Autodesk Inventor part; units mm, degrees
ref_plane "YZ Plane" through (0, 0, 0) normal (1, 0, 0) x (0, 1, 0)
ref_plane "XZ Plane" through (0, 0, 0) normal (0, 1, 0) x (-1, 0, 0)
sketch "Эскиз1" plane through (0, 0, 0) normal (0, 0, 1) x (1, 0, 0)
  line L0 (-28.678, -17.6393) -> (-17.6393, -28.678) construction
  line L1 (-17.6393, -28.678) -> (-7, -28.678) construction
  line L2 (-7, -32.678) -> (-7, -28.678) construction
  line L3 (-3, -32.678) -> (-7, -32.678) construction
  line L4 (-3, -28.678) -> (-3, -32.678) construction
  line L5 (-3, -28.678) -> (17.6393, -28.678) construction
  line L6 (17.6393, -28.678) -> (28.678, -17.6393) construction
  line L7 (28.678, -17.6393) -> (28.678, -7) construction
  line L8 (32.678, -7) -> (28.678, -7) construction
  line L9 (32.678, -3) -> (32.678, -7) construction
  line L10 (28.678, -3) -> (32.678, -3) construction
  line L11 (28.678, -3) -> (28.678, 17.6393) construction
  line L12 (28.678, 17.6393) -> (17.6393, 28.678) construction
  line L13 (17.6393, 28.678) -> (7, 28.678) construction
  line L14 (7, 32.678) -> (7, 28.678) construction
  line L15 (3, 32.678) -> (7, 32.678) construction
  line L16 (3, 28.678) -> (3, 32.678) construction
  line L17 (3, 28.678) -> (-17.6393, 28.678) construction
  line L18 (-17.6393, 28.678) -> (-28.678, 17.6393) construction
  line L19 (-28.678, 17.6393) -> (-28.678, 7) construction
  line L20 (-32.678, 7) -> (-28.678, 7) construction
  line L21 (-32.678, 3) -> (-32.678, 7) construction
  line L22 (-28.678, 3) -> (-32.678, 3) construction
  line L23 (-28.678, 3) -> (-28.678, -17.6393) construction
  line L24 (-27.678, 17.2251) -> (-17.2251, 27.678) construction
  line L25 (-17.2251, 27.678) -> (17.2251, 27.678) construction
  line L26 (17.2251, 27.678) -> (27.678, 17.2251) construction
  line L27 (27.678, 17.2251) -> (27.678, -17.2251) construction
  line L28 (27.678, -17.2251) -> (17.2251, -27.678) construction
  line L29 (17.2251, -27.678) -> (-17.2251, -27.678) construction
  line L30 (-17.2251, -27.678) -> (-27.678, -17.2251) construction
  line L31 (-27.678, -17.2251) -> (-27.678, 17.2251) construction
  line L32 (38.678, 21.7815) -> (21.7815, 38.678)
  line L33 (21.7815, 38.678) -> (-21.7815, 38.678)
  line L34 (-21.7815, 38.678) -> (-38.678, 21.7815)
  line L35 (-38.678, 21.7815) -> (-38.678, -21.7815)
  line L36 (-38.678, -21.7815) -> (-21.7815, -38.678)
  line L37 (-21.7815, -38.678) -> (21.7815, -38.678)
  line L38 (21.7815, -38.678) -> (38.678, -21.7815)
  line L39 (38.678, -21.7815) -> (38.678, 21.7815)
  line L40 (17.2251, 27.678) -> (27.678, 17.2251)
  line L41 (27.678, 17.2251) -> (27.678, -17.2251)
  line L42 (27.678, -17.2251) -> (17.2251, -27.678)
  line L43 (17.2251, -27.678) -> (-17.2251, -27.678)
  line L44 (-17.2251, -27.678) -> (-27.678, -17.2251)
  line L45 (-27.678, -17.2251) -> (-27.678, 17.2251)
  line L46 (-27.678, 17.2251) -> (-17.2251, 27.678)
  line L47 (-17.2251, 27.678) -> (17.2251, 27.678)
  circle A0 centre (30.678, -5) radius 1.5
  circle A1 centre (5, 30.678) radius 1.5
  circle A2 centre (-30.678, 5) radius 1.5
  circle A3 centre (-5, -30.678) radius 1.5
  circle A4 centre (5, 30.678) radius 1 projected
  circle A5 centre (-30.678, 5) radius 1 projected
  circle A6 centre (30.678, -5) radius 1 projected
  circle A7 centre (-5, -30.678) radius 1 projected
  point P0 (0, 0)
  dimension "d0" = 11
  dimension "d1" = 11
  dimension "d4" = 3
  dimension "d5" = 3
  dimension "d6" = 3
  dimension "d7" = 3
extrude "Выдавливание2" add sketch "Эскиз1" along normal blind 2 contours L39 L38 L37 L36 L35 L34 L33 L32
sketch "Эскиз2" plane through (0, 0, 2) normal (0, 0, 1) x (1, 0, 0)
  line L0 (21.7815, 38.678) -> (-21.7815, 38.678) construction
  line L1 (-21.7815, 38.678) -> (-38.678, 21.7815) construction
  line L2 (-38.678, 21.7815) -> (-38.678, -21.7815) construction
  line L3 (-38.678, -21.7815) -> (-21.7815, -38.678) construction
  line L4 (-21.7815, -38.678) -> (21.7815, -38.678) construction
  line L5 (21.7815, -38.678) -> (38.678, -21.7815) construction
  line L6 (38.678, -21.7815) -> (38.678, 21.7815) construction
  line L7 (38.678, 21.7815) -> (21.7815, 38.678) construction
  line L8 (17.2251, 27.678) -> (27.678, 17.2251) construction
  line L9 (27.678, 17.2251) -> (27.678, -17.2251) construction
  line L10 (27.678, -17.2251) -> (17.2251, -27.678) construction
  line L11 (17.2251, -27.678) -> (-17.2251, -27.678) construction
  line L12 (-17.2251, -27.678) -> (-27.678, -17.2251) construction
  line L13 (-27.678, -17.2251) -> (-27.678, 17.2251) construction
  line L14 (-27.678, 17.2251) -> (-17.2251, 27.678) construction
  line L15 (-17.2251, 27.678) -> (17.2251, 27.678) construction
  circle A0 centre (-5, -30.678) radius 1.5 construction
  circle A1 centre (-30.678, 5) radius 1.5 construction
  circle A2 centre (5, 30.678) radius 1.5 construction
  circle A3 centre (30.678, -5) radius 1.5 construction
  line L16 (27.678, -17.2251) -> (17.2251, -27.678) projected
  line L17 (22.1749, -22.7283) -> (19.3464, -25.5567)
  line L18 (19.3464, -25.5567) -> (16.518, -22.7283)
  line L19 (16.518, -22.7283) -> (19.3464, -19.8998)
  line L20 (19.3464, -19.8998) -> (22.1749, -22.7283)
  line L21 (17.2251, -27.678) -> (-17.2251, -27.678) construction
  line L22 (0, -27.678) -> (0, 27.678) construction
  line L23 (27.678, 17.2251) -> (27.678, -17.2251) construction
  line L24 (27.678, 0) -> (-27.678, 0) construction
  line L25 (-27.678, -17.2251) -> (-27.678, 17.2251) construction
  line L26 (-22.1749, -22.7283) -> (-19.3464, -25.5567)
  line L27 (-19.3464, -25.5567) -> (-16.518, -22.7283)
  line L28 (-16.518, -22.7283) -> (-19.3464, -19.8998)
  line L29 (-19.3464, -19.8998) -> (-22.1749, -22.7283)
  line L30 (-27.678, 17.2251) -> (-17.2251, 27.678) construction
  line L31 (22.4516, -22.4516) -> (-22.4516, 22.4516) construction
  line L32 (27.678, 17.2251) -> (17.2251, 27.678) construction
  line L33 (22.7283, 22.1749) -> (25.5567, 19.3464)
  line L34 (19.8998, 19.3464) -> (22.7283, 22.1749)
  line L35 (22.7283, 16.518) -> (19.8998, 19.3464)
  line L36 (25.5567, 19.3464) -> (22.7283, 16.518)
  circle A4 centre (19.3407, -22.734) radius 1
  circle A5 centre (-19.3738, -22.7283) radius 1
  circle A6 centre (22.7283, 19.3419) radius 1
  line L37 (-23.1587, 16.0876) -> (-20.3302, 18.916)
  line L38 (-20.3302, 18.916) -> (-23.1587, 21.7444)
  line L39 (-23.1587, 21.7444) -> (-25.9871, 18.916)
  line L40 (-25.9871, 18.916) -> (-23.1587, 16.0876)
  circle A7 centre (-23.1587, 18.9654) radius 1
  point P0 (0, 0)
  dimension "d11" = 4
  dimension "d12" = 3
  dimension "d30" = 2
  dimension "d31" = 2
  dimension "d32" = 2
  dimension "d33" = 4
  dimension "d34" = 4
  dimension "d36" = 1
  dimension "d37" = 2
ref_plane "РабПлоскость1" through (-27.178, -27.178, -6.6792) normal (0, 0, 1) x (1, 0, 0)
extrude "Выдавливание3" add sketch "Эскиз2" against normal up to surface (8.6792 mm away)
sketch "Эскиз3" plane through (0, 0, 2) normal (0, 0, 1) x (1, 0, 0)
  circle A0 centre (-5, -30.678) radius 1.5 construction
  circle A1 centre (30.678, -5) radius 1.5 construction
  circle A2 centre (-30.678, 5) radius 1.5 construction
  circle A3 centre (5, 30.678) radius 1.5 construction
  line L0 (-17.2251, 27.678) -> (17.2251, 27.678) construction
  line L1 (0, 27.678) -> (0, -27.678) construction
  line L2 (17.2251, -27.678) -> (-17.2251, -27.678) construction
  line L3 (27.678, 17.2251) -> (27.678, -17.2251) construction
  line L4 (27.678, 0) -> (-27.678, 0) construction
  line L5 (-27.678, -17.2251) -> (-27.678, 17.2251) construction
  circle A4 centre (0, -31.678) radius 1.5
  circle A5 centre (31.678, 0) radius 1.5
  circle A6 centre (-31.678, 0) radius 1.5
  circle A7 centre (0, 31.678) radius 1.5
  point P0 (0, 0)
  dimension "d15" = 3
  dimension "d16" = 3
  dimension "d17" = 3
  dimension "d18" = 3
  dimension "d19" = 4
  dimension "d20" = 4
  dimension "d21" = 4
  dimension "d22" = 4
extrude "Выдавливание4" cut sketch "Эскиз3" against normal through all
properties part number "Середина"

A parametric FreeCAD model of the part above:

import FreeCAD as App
import Part
import Sketcher
from FreeCAD import Vector
Q = App.Units.Quantity

doc = App.newDocument("Part")
body = doc.addObject("PartDesign::Body", "Body")

# Sketch on XY plane
sketch1 = body.newObject("Sketcher::SketchObject", "Sketch")
sketch1.AttachmentSupport = (doc.getObject("XY_Plane"), [""])
sketch1.MapMode = "FlatFace"
sketch1.addGeometry(Part.LineSegment(Vector(38.7, -21.8, 0), Vector(38.7, 21.8, 0)), False)
sketch1.addGeometry(Part.LineSegment(Vector(38.7, 21.8, 0), Vector(21.8, 38.7, 0)), False)
sketch1.addGeometry(Part.LineSegment(Vector(21.8, 38.7, 0), Vector(-21.8, 38.7, 0)), False)
sketch1.addGeometry(Part.LineSegment(Vector(-21.8, 38.7, 0), Vector(-38.7, 21.8, 0)), False)
sketch1.addGeometry(Part.LineSegment(Vector(-38.7, 21.8, 0), Vector(-38.7, -21.8, 0)), False)
sketch1.addGeometry(Part.LineSegment(Vector(-38.7, -21.8, 0), Vector(-21.8, -38.7, 0)), False)
sketch1.addGeometry(Part.LineSegment(Vector(-21.8, -38.7, 0), Vector(21.8, -38.7, 0)), False)
sketch1.addGeometry(Part.LineSegment(Vector(21.8, -38.7, 0), Vector(38.7, -21.8, 0)), False)
sketch1.addGeometry(Part.Circle(Vector(-5, -30.7, 0), Vector(0, 0, 1), 1.5), False)
sketch1.addGeometry(Part.Circle(Vector(30.7, -5, 0), Vector(0, 0, 1), 1.5), False)
sketch1.addGeometry(Part.Circle(Vector(-30.7, 5, 0), Vector(0, 0, 1), 1.5), False)
sketch1.addGeometry(Part.LineSegment(Vector(-17.2, 27.7, 0), Vector(17.2, 27.7, 0)), False)
sketch1.addGeometry(Part.LineSegment(Vector(17.2, 27.7, 0), Vector(27.7, 17.2, 0)), False)
sketch1.addGeometry(Part.LineSegment(Vector(27.7, 17.2, 0), Vector(27.7, -17.2, 0)), False)
sketch1.addGeometry(Part.LineSegment(Vector(27.7, -17.2, 0), Vector(17.2, -27.7, 0)), False)
sketch1.addGeometry(Part.LineSegment(Vector(17.2, -27.7, 0), Vector(-17.2, -27.7, 0)), False)
sketch1.addGeometry(Part.LineSegment(Vector(-17.2, -27.7, 0), Vector(-27.7, -17.2, 0)), False)
sketch1.addGeometry(Part.LineSegment(Vector(-27.7, -17.2, 0), Vector(-27.7, 17.2, 0)), False)
sketch1.addGeometry(Part.LineSegment(Vector(-27.7, 17.2, 0), Vector(-17.2, 27.7, 0)), False)
sketch1.addGeometry(Part.Circle(Vector(5, 30.7, 0), Vector(0, 0, 1), 1.5), False)
sketch1.addConstraint(Sketcher.Constraint("Coincident", 0, 2, 1, 1))
sketch1.addConstraint(Sketcher.Constraint("Coincident", 1, 2, 2, 1))
sketch1.addConstraint(Sketcher.Constraint("Coincident", 2, 2, 3, 1))
sketch1.addConstraint(Sketcher.Constraint("Coincident", 3, 2, 4, 1))
sketch1.addConstraint(Sketcher.Constraint("Coincident", 4, 2, 5, 1))
sketch1.addConstraint(Sketcher.Constraint("Coincident", 5, 2, 6, 1))
sketch1.addConstraint(Sketcher.Constraint("Coincident", 6, 2, 7, 1))
sketch1.addConstraint(Sketcher.Constraint("Coincident", 7, 2, 0, 1))
sketch1.addConstraint(Sketcher.Constraint("Coincident", 11, 2, 12, 1))
sketch1.addConstraint(Sketcher.Constraint("Coincident", 12, 2, 13, 1))
sketch1.addConstraint(Sketcher.Constraint("Coincident", 13, 2, 14, 1))
sketch1.addConstraint(Sketcher.Constraint("Coincident", 14, 2, 15, 1))
sketch1.addConstraint(Sketcher.Constraint("Coincident", 15, 2, 16, 1))
sketch1.addConstraint(Sketcher.Constraint("Coincident", 16, 2, 17, 1))
sketch1.addConstraint(Sketcher.Constraint("Coincident", 17, 2, 18, 1))
sketch1.addConstraint(Sketcher.Constraint("Coincident", 18, 2, 11, 1))
sketch1.addConstraint(Sketcher.Constraint("Vertical", 0))
sketch1.addConstraint(Sketcher.Constraint("Horizontal", 2))
sketch1.addConstraint(Sketcher.Constraint("Vertical", 4))
sketch1.addConstraint(Sketcher.Constraint("Horizontal", 6))
sketch1.addConstraint(Sketcher.Constraint("Horizontal", 11))
sketch1.addConstraint(Sketcher.Constraint("Vertical", 13))
sketch1.addConstraint(Sketcher.Constraint("Horizontal", 15))
sketch1.addConstraint(Sketcher.Constraint("Vertical", 17))
sketch1.addConstraint(Sketcher.Constraint("Equal", 8, 9))
sketch1.addConstraint(Sketcher.Constraint("Equal", 9, 10))
sketch1.addConstraint(Sketcher.Constraint("Equal", 10, 19))
sketch1.addConstraint(Sketcher.Constraint("Symmetric", 9, 3, 10, 3, -1, 1))
sketch1.addConstraint(Sketcher.Constraint("Symmetric", 8, 3, 19, 3, -1, 1))
sketch1.addConstraint(Sketcher.Constraint("Symmetric", 0, 2, 4, 2, -1, 1))
sketch1.addConstraint(Sketcher.Constraint("Symmetric", 1, 2, 5, 2, -1, 1))
sketch1.addConstraint(Sketcher.Constraint("Symmetric", 11, 2, 15, 2, -1, 1))
sketch1.addConstraint(Sketcher.Constraint("Symmetric", 12, 2, 16, 2, -1, 1))
sketch1.addConstraint(Sketcher.Constraint("Perpendicular", 1, 3))
sketch1.addConstraint(Sketcher.Constraint("Perpendicular", 5, 7))
sketch1.addConstraint(Sketcher.Constraint("Perpendicular", 7, 12))
sketch1.addConstraint(Sketcher.Constraint("Perpendicular", 12, 14))
sketch1.addConstraint(Sketcher.Constraint("Perpendicular", 16, 18))
sketch1.addConstraint(Sketcher.Constraint("Horizontal", 0, 2, 3, 2))
sketch1.addConstraint(Sketcher.Constraint("Horizontal", 4, 2, 7, 2))
sketch1.addConstraint(Sketcher.Constraint("Horizontal", 13, 2, 16, 2))
sketch1.addConstraint(Sketcher.Constraint("Horizontal", 12, 2, 17, 2))
sketch1.addConstraint(Sketcher.Constraint("Vertical", 2, 2, 5, 2))
sketch1.addConstraint(Sketcher.Constraint("Equal", 6, 0))
sketch1.addConstraint(Sketcher.Constraint("Equal", 15, 13))
sketch1.addConstraint(Sketcher.Constraint("Diameter", 8, Q("3 mm")))
sketch1.addConstraint(Sketcher.Constraint("DistanceY", 11, 2, 1, 2, Q("11 mm")))
sketch1.addConstraint(Sketcher.Constraint("DistanceY", 11, 2, 19, 3, Q("3 mm")))
sketch1.addConstraint(Sketcher.Constraint("DistanceX", 12, 2, 9, 3, Q("3 mm")))
sketch1.addConstraint(Sketcher.Constraint("DistanceX", 8, 3, -1, 1, Q("5 mm")))
sketch1.addConstraint(Sketcher.Constraint("DistanceY", 9, 3, -1, 1, Q("5 mm")))
sketch1.addConstraint(Sketcher.Constraint("DistanceX", 2, 2, 2, 1, Q("43.563 mm")))
sketch1.addConstraint(Sketcher.Constraint("DistanceX", 11, 1, 11, 2, Q("34.4502 mm")))
sketch1.addConstraint(Sketcher.Constraint("DistanceY", 8, 3, -1, 1, Q("30.678 mm")))
pad1 = body.newObject("PartDesign::Pad", "Pad")
pad1.Profile = sketch1
pad1.Length = 2

# Sketch on XY plane
sketch2 = body.newObject("Sketcher::SketchObject", "Sketch001")
sketch2.AttachmentSupport = (doc.getObject("XY_Plane"), [""])
sketch2.MapMode = "FlatFace"
sketch2.AttachmentOffset = App.Placement(Vector(0, 0, 2), App.Rotation())
sketch2.addGeometry(Part.LineSegment(Vector(19.3, -25.6, 0), Vector(22.2, -22.7, 0)), False)
sketch2.addGeometry(Part.LineSegment(Vector(22.2, -22.7, 0), Vector(19.3, -19.9, 0)), False)
sketch2.addGeometry(Part.LineSegment(Vector(19.3, -19.9, 0), Vector(16.5, -22.7, 0)), False)
sketch2.addGeometry(Part.LineSegment(Vector(16.5, -22.7, 0), Vector(19.3, -25.6, 0)), False)
sketch2.addGeometry(Part.Circle(Vector(19.3, -22.7, 0), Vector(0, 0, 1), 1), False)
sketch2.addGeometry(Part.LineSegment(Vector(-19.3, -19.9, 0), Vector(-22.2, -22.7, 0)), False)
sketch2.addGeometry(Part.LineSegment(Vector(-22.2, -22.7, 0), Vector(-19.3, -25.6, 0)), False)
sketch2.addGeometry(Part.LineSegment(Vector(-19.3, -25.6, 0), Vector(-16.5, -22.7, 0)), False)
sketch2.addGeometry(Part.LineSegment(Vector(-16.5, -22.7, 0), Vector(-19.3, -19.9, 0)), False)
sketch2.addGeometry(Part.Circle(Vector(-19.4, -22.7, 0), Vector(0, 0, 1), 1), False)
sketch2.addGeometry(Part.LineSegment(Vector(25.6, 19.3, 0), Vector(22.7, 22.2, 0)), False)
sketch2.addGeometry(Part.LineSegment(Vector(22.7, 22.2, 0), Vector(19.9, 19.3, 0)), False)
sketch2.addGeometry(Part.LineSegment(Vector(19.9, 19.3, 0), Vector(22.7, 16.5, 0)), False)
sketch2.addGeometry(Part.LineSegment(Vector(22.7, 16.5, 0), Vector(25.6, 19.3, 0)), False)
sketch2.addGeometry(Part.Circle(Vector(22.7, 19.3, 0), Vector(0, 0, 1), 1), False)
sketch2.addGeometry(Part.LineSegment(Vector(-26, 18.9, 0), Vector(-23.2, 16.1, 0)), False)
sketch2.addGeometry(Part.LineSegment(Vector(-23.2, 16.1, 0), Vector(-20.3, 18.9, 0)), False)
sketch2.addGeometry(Part.LineSegment(Vector(-20.3, 18.9, 0), Vector(-23.2, 21.7, 0)), False)
sketch2.addGeometry(Part.LineSegment(Vector(-23.2, 21.7, 0), Vector(-26, 18.9, 0)), False)
sketch2.addGeometry(Part.Circle(Vector(-23.2, 19, 0), Vector(0, 0, 1), 1), False)
sketch2.addConstraint(Sketcher.Constraint("Coincident", 0, 2, 1, 1))
sketch2.addConstraint(Sketcher.Constraint("Coincident", 1, 2, 2, 1))
sketch2.addConstraint(Sketcher.Constraint("Coincident", 2, 2, 3, 1))
sketch2.addConstraint(Sketcher.Constraint("Coincident", 3, 2, 0, 1))
sketch2.addConstraint(Sketcher.Constraint("Coincident", 5, 2, 6, 1))
sketch2.addConstraint(Sketcher.Constraint("Coincident", 6, 2, 7, 1))
sketch2.addConstraint(Sketcher.Constraint("Coincident", 7, 2, 8, 1))
sketch2.addConstraint(Sketcher.Constraint("Coincident", 8, 2, 5, 1))
sketch2.addConstraint(Sketcher.Constraint("Coincident", 10, 2, 11, 1))
sketch2.addConstraint(Sketcher.Constraint("Coincident", 11, 2, 12, 1))
sketch2.addConstraint(Sketcher.Constraint("Coincident", 12, 2, 13, 1))
sketch2.addConstraint(Sketcher.Constraint("Coincident", 13, 2, 10, 1))
sketch2.addConstraint(Sketcher.Constraint("Coincident", 15, 2, 16, 1))
sketch2.addConstraint(Sketcher.Constraint("Coincident", 16, 2, 17, 1))
sketch2.addConstraint(Sketcher.Constraint("Coincident", 17, 2, 18, 1))
sketch2.addConstraint(Sketcher.Constraint("Coincident", 18, 2, 15, 1))
sketch2.addConstraint(Sketcher.Constraint("Equal", 4, 9))
sketch2.addConstraint(Sketcher.Constraint("Equal", 9, 14))
sketch2.addConstraint(Sketcher.Constraint("Equal", 14, 19))
sketch2.addConstraint(Sketcher.Constraint("Symmetric", 0, 2, 5, 2, -2))
sketch2.addConstraint(Sketcher.Constraint("Symmetric", 3, 2, 6, 2, -2))
sketch2.addConstraint(Sketcher.Constraint("Symmetric", 2, 2, 7, 2, -2))
sketch2.addConstraint(Sketcher.Constraint("Symmetric", 1, 2, 8, 2, -2))
sketch2.addConstraint(Sketcher.Constraint("Perpendicular", 0, 1))
sketch2.addConstraint(Sketcher.Constraint("Perpendicular", 1, 2))
sketch2.addConstraint(Sketcher.Constraint("Perpendicular", 2, 3))
sketch2.addConstraint(Sketcher.Constraint("Perpendicular", 3, 5))
sketch2.addConstraint(Sketcher.Constraint("Parallel", 8, 10))
sketch2.addConstraint(Sketcher.Constraint("Perpendicular", 10, 11))
sketch2.addConstraint(Sketcher.Constraint("Perpendicular", 11, 12))
sketch2.addConstraint(Sketcher.Constraint("Perpendicular", 12, 13))
sketch2.addConstraint(Sketcher.Constraint("Perpendicular", 13, 15))
sketch2.addConstraint(Sketcher.Constraint("Perpendicular", 15, 16))
sketch2.addConstraint(Sketcher.Constraint("Perpendicular", 16, 17))
sketch2.addConstraint(Sketcher.Constraint("Perpendicular", 17, 18))
sketch2.addConstraint(Sketcher.Constraint("Horizontal", 9, 3, 0, 2))
sketch2.addConstraint(Sketcher.Constraint("Horizontal", 0, 2, 2, 2))
sketch2.addConstraint(Sketcher.Constraint("Horizontal", 11, 2, 13, 2))
sketch2.addConstraint(Sketcher.Constraint("Horizontal", 16, 2, 18, 2))
sketch2.addConstraint(Sketcher.Constraint("Vertical", 14, 3, 10, 2))
sketch2.addConstraint(Sketcher.Constraint("Vertical", 19, 3, 15, 2))
sketch2.addConstraint(Sketcher.Constraint("Equal", 8, 10))
sketch2.addConstraint(Sketcher.Constraint("Equal", 13, 15))
sketch2.addConstraint(Sketcher.Constraint("Diameter", 4, Q("2 mm")))
sketch2.addConstraint(Sketcher.Constraint("Distance", 0, Q("4 mm")))
sketch2.addConstraint(Sketcher.Constraint("DistanceX", 16, 2, 11, 2, Q("40.23 mm")))
sketch2.addConstraint(Sketcher.Constraint("DistanceY", 4, 3, -1, 1, Q("22.734 mm")))
sketch2.addConstraint(Sketcher.Constraint("DistanceY", -1, 1, 14, 3, Q("19.342 mm")))
sketch2.addConstraint(Sketcher.Constraint("DistanceX", -1, 1, 2, 2, Q("16.518 mm")))
sketch2.addConstraint(Sketcher.Constraint("DistanceY", -1, 1, 10, 2, Q("22.175 mm")))
sketch2.addConstraint(Sketcher.Constraint("DistanceY", -1, 1, 16, 2, Q("18.916 mm")))
sketch2.addConstraint(Sketcher.Constraint("DistanceX", 18, 2, -1, 1, Q("25.987 mm")))
sketch2.addConstraint(Sketcher.Constraint("DistanceX", 9, 3, 14, 3, Q("42.102 mm")))
sketch2.addConstraint(Sketcher.Constraint("DistanceX", 6, 2, 4, 3, Q("38.687 mm")))
sketch2.addConstraint(Sketcher.Constraint("DistanceY", 5, 2, 15, 2, Q("38.816 mm")))
sketch2.addConstraint(Sketcher.Constraint("DistanceY", 19, 3, 17, 2, Q("2.779 mm")))
pad2 = body.newObject("PartDesign::Pad", "Pad001")
pad2.Profile = sketch2
pad2.Length = 8.6792
pad2.Reversed = True

# Sketch on XY plane
sketch3 = body.newObject("Sketcher::SketchObject", "Sketch002")
sketch3.AttachmentSupport = (doc.getObject("XY_Plane"), [""])
sketch3.MapMode = "FlatFace"
sketch3.AttachmentOffset = App.Placement(Vector(0, 0, 2), App.Rotation())
sketch3.addGeometry(Part.Circle(Vector(0, -31.7, 0), Vector(0, 0, 1), 1.5), False)
sketch3.addGeometry(Part.Circle(Vector(31.7, 0, 0), Vector(0, 0, 1), 1.5), False)
sketch3.addGeometry(Part.Circle(Vector(-31.7, 0, 0), Vector(0, 0, 1), 1.5), False)
sketch3.addGeometry(Part.Circle(Vector(0, 31.7, 0), Vector(0, 0, 1), 1.5), False)
sketch3.addConstraint(Sketcher.Constraint("Equal", 0, 1))
sketch3.addConstraint(Sketcher.Constraint("Equal", 1, 2))
sketch3.addConstraint(Sketcher.Constraint("Equal", 2, 3))
sketch3.addConstraint(Sketcher.Constraint("Symmetric", 1, 3, 2, 3, -1, 1))
sketch3.addConstraint(Sketcher.Constraint("Symmetric", 0, 3, 3, 3, -1, 1))
sketch3.addConstraint(Sketcher.Constraint("PointOnObject", 0, 3, -2))
sketch3.addConstraint(Sketcher.Constraint("PointOnObject", 1, 3, -1))
sketch3.addConstraint(Sketcher.Constraint("Diameter", 0, Q("3 mm")))
sketch3.addConstraint(Sketcher.Constraint("DistanceY", 0, 3, -1, 1, Q("31.678 mm")))
sketch3.addConstraint(Sketcher.Constraint("DistanceX", -1, 1, 1, 3, Q("31.678 mm")))
pocket1 = body.newObject("PartDesign::Pocket", "Pocket")
pocket1.Profile = sketch3
pocket1.Type = "ThroughAll"

doc.recompute()
